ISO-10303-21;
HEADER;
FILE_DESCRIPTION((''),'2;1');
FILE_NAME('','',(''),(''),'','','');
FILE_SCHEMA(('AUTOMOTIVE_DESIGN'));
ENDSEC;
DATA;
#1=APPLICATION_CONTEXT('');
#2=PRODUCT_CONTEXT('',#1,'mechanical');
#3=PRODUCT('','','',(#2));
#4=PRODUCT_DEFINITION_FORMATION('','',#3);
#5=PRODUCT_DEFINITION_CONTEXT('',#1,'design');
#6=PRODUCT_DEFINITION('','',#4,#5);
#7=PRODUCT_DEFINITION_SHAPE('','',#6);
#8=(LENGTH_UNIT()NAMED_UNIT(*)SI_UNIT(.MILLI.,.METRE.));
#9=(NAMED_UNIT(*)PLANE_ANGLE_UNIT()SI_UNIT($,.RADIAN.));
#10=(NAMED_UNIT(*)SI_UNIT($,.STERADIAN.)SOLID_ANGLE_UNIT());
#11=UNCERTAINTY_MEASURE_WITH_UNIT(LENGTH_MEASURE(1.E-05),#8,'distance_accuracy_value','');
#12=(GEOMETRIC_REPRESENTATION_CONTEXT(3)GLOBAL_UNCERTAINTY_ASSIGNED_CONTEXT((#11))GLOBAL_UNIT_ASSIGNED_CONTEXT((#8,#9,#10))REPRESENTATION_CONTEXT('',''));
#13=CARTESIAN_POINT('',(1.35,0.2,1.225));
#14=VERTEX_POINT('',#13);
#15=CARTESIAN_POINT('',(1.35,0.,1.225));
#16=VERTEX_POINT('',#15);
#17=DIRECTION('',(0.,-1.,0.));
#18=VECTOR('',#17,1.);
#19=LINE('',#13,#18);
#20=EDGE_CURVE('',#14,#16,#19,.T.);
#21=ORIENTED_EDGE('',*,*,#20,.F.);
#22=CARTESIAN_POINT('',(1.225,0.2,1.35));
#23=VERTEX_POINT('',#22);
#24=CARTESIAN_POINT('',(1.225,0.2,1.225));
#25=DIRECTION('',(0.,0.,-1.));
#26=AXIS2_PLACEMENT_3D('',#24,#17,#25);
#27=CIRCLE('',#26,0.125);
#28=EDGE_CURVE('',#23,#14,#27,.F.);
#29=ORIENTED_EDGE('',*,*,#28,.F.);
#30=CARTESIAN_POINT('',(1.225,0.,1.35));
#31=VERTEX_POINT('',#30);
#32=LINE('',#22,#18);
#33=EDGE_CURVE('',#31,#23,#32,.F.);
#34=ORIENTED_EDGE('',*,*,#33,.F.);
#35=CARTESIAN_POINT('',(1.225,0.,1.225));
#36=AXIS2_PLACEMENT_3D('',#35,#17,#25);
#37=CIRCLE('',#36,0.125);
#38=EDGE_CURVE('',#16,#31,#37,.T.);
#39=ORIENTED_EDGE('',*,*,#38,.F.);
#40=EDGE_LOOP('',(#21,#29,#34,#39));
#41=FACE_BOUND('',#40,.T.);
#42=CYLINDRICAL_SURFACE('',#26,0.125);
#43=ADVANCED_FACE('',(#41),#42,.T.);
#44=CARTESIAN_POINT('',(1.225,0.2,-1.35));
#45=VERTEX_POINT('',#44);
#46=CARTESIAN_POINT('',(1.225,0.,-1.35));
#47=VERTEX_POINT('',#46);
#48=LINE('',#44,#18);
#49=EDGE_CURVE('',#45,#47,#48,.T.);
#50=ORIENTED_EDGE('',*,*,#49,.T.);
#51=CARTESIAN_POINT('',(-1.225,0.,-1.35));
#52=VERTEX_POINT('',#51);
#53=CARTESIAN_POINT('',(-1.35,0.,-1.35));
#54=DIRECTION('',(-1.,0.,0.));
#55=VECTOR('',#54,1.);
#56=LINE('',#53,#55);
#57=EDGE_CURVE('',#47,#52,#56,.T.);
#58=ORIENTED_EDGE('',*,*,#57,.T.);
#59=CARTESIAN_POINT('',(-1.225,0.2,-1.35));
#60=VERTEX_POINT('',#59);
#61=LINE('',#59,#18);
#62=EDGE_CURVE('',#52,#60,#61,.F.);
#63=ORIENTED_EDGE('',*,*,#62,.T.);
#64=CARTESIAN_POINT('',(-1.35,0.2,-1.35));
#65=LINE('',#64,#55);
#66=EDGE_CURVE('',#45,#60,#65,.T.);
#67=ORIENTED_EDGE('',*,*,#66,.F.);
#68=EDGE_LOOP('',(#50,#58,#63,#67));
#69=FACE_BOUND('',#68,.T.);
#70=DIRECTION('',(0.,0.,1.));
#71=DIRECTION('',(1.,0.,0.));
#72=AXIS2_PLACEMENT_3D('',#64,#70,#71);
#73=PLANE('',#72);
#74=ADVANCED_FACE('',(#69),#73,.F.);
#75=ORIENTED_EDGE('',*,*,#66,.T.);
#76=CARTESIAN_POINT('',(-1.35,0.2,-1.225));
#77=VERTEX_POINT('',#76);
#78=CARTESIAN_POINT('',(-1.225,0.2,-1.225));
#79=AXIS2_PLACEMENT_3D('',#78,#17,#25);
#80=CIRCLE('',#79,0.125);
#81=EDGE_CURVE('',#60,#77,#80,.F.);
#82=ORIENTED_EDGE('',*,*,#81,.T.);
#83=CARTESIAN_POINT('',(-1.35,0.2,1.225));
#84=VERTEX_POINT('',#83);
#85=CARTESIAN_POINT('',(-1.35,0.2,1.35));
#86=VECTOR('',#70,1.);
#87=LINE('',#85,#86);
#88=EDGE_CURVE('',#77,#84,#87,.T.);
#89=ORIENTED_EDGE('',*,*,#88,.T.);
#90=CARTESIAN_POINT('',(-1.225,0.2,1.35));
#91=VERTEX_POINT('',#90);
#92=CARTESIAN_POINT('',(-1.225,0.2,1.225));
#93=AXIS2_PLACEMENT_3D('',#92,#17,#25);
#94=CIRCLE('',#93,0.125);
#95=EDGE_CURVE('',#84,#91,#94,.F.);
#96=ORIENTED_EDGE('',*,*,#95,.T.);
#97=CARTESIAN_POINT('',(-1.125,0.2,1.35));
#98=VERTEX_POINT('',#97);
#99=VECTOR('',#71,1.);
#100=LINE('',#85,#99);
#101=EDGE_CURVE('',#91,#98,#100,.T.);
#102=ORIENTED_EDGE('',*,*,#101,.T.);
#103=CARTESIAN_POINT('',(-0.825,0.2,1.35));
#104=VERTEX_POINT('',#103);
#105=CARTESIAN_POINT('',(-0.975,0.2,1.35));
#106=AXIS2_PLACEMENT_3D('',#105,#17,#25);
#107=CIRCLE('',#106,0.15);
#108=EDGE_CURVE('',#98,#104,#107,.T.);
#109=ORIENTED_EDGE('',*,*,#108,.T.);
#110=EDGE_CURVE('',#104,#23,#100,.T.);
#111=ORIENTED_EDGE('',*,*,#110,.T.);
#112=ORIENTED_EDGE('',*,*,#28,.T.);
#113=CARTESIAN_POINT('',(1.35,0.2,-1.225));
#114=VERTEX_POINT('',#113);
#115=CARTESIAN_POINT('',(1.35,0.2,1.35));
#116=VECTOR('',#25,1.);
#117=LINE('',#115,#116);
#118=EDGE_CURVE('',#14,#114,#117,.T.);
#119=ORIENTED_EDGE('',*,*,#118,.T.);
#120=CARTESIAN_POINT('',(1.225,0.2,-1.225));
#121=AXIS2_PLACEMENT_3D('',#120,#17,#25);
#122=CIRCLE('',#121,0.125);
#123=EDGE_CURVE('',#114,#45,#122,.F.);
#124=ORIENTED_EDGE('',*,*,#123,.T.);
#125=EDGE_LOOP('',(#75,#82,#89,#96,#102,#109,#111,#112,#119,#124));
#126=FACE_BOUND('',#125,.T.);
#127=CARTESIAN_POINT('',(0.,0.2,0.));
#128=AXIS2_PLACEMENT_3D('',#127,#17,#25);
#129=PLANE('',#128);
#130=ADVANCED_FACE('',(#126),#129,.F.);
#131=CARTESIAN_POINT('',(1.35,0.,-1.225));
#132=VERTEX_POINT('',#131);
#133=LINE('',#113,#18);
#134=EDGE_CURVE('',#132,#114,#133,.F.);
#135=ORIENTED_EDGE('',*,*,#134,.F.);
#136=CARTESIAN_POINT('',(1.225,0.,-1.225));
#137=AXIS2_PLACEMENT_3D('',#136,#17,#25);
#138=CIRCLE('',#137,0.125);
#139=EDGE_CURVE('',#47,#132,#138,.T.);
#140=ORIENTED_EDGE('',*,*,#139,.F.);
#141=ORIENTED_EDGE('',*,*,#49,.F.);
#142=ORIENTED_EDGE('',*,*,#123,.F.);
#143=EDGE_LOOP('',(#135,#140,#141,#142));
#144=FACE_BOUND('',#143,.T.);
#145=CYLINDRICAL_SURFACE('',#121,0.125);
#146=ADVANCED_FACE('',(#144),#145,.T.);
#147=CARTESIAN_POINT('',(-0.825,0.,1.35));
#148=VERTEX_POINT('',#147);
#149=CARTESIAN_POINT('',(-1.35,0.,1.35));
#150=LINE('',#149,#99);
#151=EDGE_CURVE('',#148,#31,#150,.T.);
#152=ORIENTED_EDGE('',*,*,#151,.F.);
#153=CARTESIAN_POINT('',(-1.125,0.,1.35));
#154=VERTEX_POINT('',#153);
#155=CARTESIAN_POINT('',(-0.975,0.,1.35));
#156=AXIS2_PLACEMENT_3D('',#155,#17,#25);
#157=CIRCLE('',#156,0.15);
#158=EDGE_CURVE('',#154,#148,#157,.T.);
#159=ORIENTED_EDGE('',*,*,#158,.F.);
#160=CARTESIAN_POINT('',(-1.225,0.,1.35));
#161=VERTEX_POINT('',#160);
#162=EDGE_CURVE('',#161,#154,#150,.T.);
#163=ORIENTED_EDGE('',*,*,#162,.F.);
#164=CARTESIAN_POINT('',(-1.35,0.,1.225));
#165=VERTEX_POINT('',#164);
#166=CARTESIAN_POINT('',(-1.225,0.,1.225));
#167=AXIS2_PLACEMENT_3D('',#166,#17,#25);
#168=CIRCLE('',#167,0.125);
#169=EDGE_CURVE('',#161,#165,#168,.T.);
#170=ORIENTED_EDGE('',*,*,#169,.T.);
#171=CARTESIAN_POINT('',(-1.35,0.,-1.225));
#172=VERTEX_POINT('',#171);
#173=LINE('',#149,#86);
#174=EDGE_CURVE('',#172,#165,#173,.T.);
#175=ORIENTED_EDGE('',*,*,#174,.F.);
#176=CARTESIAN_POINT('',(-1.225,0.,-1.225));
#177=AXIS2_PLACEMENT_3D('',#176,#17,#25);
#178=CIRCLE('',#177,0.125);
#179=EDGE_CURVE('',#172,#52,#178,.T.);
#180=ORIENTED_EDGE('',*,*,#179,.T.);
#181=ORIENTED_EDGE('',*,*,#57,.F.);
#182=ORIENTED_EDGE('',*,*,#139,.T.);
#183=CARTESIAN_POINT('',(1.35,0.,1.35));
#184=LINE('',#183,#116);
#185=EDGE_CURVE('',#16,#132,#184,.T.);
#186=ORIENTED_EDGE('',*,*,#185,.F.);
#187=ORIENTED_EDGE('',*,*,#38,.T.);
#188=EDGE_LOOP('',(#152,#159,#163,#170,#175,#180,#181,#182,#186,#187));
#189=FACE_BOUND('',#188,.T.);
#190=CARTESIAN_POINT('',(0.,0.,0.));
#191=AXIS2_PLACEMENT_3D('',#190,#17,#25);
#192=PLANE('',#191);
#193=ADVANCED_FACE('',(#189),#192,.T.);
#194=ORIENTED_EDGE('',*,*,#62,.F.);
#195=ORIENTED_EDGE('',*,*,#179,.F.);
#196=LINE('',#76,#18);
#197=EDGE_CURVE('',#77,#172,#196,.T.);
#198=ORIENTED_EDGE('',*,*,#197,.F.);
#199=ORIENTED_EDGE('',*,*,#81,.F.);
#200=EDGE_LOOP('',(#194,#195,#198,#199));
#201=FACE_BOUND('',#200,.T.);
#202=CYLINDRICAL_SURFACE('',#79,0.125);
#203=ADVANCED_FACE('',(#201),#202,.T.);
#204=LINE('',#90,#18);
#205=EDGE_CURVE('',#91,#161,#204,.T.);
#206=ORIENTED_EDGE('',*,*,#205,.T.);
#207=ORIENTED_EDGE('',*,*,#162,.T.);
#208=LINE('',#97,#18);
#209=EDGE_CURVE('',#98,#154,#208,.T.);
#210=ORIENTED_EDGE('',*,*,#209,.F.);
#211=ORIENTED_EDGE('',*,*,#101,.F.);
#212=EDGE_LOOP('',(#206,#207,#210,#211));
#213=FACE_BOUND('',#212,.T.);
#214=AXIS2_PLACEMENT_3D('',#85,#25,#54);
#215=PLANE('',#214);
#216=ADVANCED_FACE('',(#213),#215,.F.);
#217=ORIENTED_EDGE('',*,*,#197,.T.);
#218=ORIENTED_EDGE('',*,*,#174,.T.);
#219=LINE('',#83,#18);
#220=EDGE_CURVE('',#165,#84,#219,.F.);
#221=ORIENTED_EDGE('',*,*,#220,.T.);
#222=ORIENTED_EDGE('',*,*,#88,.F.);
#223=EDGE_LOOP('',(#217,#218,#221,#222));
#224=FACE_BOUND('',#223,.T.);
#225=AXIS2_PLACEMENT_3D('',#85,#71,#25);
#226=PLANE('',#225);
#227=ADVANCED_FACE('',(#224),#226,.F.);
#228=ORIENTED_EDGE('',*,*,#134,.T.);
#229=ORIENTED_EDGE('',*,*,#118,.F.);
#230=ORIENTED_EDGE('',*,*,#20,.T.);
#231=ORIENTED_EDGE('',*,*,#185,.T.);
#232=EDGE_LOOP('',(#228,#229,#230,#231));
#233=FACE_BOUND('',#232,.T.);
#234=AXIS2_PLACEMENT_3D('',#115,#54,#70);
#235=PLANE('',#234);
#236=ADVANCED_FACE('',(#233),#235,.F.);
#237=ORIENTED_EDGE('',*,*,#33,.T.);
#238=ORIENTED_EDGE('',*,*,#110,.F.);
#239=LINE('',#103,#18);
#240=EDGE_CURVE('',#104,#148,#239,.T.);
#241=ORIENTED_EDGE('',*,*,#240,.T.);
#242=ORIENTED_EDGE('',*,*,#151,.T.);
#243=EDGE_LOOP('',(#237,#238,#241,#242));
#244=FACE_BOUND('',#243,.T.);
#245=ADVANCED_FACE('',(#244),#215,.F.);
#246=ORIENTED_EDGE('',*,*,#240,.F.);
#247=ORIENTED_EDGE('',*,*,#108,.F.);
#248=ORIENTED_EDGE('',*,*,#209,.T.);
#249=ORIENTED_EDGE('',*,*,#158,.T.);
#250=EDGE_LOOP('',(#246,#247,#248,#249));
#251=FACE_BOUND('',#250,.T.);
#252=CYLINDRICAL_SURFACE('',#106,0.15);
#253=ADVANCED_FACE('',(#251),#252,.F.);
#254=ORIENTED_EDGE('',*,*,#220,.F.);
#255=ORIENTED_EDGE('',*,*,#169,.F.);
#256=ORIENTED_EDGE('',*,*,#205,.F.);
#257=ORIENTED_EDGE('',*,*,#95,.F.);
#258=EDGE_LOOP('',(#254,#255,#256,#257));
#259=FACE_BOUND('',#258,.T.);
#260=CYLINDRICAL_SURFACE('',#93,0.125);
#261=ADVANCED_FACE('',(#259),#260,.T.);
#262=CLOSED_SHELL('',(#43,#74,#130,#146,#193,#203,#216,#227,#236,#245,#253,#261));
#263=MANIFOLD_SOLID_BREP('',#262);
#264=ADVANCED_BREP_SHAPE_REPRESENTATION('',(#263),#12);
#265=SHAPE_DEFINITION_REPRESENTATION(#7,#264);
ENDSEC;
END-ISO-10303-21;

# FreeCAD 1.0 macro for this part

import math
import FreeCAD as App
import Part
import Sketcher
from FreeCAD import Vector


def edges_at(feature, points):
    """Names of the edges that pass closest to the given points."""
    edges = feature.Shape.Edges
    near = lambda p: min(range(len(edges)), key=lambda i: edges[i].distToShape(Part.Vertex(*p))[0])
    return sorted({f"Edge{near(p) + 1}" for p in points})


def add_polygon(sketch, points):
    """Adds a closed chain of lines whose ends are joined by coincident constraints."""
    first, n = sketch.GeometryCount, len(points)
    for a, b in zip(points, points[1:] + points[:1]):
        sketch.addGeometry(Part.LineSegment(App.Vector(*a, 0), App.Vector(*b, 0)), False)
    for i in range(n):
        sketch.addConstraint(Sketcher.Constraint("Coincident", first + i, 2, first + (i + 1) % n, 1))

doc = App.newDocument("Part")
body = doc.addObject("PartDesign::Body", "Body")

sketch1 = body.newObject("Sketcher::SketchObject", "Sketch")
sketch1.AttachmentSupport = (doc.getObject("XZ_Plane"), [""])
sketch1.MapMode = "FlatFace"
add_polygon(sketch1, [(-1.4, -1.4), (-1.4, 1.4), (1.4, 1.4), (1.4, -1.4)])
sketch1.addConstraint([
    Sketcher.Constraint("Vertical", 0),
    Sketcher.Constraint("Horizontal", 1),
    Sketcher.Constraint("Vertical", 2),
    Sketcher.Constraint("Horizontal", 3),
    Sketcher.Constraint("Symmetric", 0, 2, 2, 2, -1, 1),
    Sketcher.Constraint("Equal", 3, 0),
    Sketcher.Constraint("DistanceX", 1, 1, 1, 2, 2.7),
])
pad1 = body.newObject("PartDesign::Pad", "Pad")
pad1.Profile = sketch1
pad1.Length = 0.2
pad1.Reversed = True
doc.recompute()

fillet = body.newObject("PartDesign::Fillet", "Fillet")
fillet.Base = (pad1, edges_at(pad1, [
    (1.35, 0.1, 1.35),
    (-1.35, 0.1, 1.35),
    (-1.35, 0.1, -1.35),
    (1.35, 0.1, -1.35),
]))
fillet.Radius = 0.125

sketch2 = body.newObject("Sketcher::SketchObject", "Sketch001")
sketch2.AttachmentSupport = (doc.getObject("XZ_Plane"), [""])
sketch2.MapMode = "FlatFace"
sketch2.addGeometry([
    Part.LineSegment(Vector(-0.82, 1.35, 0), Vector(-1.12, 1.35, 0)),
    Part.ArcOfCircle(Part.Circle(Vector(-0.97, 1.35, 0), Vector(0, 0, 1), 0.15), math.radians(180), math.radians(360)),
], False)
sketch2.addConstraint([
    Sketcher.Constraint("Coincident", 0, 1, 1, 2),
    Sketcher.Constraint("Coincident", 1, 1, 0, 2),
    Sketcher.Constraint("Horizontal", 0),
    Sketcher.Constraint("Horizontal", 1, 3, 0, 1),
    Sketcher.Constraint("Radius", 1, 0.15),
    Sketcher.Constraint("DistanceY", -1, 1, 1, 3, 1.35),
    Sketcher.Constraint("DistanceX", 1, 3, -1, 1, 0.975),
])
pocket1 = body.newObject("PartDesign::Pocket", "Pocket")
pocket1.Profile = sketch2
pocket1.Type = "ThroughAll"

doc.recompute()
